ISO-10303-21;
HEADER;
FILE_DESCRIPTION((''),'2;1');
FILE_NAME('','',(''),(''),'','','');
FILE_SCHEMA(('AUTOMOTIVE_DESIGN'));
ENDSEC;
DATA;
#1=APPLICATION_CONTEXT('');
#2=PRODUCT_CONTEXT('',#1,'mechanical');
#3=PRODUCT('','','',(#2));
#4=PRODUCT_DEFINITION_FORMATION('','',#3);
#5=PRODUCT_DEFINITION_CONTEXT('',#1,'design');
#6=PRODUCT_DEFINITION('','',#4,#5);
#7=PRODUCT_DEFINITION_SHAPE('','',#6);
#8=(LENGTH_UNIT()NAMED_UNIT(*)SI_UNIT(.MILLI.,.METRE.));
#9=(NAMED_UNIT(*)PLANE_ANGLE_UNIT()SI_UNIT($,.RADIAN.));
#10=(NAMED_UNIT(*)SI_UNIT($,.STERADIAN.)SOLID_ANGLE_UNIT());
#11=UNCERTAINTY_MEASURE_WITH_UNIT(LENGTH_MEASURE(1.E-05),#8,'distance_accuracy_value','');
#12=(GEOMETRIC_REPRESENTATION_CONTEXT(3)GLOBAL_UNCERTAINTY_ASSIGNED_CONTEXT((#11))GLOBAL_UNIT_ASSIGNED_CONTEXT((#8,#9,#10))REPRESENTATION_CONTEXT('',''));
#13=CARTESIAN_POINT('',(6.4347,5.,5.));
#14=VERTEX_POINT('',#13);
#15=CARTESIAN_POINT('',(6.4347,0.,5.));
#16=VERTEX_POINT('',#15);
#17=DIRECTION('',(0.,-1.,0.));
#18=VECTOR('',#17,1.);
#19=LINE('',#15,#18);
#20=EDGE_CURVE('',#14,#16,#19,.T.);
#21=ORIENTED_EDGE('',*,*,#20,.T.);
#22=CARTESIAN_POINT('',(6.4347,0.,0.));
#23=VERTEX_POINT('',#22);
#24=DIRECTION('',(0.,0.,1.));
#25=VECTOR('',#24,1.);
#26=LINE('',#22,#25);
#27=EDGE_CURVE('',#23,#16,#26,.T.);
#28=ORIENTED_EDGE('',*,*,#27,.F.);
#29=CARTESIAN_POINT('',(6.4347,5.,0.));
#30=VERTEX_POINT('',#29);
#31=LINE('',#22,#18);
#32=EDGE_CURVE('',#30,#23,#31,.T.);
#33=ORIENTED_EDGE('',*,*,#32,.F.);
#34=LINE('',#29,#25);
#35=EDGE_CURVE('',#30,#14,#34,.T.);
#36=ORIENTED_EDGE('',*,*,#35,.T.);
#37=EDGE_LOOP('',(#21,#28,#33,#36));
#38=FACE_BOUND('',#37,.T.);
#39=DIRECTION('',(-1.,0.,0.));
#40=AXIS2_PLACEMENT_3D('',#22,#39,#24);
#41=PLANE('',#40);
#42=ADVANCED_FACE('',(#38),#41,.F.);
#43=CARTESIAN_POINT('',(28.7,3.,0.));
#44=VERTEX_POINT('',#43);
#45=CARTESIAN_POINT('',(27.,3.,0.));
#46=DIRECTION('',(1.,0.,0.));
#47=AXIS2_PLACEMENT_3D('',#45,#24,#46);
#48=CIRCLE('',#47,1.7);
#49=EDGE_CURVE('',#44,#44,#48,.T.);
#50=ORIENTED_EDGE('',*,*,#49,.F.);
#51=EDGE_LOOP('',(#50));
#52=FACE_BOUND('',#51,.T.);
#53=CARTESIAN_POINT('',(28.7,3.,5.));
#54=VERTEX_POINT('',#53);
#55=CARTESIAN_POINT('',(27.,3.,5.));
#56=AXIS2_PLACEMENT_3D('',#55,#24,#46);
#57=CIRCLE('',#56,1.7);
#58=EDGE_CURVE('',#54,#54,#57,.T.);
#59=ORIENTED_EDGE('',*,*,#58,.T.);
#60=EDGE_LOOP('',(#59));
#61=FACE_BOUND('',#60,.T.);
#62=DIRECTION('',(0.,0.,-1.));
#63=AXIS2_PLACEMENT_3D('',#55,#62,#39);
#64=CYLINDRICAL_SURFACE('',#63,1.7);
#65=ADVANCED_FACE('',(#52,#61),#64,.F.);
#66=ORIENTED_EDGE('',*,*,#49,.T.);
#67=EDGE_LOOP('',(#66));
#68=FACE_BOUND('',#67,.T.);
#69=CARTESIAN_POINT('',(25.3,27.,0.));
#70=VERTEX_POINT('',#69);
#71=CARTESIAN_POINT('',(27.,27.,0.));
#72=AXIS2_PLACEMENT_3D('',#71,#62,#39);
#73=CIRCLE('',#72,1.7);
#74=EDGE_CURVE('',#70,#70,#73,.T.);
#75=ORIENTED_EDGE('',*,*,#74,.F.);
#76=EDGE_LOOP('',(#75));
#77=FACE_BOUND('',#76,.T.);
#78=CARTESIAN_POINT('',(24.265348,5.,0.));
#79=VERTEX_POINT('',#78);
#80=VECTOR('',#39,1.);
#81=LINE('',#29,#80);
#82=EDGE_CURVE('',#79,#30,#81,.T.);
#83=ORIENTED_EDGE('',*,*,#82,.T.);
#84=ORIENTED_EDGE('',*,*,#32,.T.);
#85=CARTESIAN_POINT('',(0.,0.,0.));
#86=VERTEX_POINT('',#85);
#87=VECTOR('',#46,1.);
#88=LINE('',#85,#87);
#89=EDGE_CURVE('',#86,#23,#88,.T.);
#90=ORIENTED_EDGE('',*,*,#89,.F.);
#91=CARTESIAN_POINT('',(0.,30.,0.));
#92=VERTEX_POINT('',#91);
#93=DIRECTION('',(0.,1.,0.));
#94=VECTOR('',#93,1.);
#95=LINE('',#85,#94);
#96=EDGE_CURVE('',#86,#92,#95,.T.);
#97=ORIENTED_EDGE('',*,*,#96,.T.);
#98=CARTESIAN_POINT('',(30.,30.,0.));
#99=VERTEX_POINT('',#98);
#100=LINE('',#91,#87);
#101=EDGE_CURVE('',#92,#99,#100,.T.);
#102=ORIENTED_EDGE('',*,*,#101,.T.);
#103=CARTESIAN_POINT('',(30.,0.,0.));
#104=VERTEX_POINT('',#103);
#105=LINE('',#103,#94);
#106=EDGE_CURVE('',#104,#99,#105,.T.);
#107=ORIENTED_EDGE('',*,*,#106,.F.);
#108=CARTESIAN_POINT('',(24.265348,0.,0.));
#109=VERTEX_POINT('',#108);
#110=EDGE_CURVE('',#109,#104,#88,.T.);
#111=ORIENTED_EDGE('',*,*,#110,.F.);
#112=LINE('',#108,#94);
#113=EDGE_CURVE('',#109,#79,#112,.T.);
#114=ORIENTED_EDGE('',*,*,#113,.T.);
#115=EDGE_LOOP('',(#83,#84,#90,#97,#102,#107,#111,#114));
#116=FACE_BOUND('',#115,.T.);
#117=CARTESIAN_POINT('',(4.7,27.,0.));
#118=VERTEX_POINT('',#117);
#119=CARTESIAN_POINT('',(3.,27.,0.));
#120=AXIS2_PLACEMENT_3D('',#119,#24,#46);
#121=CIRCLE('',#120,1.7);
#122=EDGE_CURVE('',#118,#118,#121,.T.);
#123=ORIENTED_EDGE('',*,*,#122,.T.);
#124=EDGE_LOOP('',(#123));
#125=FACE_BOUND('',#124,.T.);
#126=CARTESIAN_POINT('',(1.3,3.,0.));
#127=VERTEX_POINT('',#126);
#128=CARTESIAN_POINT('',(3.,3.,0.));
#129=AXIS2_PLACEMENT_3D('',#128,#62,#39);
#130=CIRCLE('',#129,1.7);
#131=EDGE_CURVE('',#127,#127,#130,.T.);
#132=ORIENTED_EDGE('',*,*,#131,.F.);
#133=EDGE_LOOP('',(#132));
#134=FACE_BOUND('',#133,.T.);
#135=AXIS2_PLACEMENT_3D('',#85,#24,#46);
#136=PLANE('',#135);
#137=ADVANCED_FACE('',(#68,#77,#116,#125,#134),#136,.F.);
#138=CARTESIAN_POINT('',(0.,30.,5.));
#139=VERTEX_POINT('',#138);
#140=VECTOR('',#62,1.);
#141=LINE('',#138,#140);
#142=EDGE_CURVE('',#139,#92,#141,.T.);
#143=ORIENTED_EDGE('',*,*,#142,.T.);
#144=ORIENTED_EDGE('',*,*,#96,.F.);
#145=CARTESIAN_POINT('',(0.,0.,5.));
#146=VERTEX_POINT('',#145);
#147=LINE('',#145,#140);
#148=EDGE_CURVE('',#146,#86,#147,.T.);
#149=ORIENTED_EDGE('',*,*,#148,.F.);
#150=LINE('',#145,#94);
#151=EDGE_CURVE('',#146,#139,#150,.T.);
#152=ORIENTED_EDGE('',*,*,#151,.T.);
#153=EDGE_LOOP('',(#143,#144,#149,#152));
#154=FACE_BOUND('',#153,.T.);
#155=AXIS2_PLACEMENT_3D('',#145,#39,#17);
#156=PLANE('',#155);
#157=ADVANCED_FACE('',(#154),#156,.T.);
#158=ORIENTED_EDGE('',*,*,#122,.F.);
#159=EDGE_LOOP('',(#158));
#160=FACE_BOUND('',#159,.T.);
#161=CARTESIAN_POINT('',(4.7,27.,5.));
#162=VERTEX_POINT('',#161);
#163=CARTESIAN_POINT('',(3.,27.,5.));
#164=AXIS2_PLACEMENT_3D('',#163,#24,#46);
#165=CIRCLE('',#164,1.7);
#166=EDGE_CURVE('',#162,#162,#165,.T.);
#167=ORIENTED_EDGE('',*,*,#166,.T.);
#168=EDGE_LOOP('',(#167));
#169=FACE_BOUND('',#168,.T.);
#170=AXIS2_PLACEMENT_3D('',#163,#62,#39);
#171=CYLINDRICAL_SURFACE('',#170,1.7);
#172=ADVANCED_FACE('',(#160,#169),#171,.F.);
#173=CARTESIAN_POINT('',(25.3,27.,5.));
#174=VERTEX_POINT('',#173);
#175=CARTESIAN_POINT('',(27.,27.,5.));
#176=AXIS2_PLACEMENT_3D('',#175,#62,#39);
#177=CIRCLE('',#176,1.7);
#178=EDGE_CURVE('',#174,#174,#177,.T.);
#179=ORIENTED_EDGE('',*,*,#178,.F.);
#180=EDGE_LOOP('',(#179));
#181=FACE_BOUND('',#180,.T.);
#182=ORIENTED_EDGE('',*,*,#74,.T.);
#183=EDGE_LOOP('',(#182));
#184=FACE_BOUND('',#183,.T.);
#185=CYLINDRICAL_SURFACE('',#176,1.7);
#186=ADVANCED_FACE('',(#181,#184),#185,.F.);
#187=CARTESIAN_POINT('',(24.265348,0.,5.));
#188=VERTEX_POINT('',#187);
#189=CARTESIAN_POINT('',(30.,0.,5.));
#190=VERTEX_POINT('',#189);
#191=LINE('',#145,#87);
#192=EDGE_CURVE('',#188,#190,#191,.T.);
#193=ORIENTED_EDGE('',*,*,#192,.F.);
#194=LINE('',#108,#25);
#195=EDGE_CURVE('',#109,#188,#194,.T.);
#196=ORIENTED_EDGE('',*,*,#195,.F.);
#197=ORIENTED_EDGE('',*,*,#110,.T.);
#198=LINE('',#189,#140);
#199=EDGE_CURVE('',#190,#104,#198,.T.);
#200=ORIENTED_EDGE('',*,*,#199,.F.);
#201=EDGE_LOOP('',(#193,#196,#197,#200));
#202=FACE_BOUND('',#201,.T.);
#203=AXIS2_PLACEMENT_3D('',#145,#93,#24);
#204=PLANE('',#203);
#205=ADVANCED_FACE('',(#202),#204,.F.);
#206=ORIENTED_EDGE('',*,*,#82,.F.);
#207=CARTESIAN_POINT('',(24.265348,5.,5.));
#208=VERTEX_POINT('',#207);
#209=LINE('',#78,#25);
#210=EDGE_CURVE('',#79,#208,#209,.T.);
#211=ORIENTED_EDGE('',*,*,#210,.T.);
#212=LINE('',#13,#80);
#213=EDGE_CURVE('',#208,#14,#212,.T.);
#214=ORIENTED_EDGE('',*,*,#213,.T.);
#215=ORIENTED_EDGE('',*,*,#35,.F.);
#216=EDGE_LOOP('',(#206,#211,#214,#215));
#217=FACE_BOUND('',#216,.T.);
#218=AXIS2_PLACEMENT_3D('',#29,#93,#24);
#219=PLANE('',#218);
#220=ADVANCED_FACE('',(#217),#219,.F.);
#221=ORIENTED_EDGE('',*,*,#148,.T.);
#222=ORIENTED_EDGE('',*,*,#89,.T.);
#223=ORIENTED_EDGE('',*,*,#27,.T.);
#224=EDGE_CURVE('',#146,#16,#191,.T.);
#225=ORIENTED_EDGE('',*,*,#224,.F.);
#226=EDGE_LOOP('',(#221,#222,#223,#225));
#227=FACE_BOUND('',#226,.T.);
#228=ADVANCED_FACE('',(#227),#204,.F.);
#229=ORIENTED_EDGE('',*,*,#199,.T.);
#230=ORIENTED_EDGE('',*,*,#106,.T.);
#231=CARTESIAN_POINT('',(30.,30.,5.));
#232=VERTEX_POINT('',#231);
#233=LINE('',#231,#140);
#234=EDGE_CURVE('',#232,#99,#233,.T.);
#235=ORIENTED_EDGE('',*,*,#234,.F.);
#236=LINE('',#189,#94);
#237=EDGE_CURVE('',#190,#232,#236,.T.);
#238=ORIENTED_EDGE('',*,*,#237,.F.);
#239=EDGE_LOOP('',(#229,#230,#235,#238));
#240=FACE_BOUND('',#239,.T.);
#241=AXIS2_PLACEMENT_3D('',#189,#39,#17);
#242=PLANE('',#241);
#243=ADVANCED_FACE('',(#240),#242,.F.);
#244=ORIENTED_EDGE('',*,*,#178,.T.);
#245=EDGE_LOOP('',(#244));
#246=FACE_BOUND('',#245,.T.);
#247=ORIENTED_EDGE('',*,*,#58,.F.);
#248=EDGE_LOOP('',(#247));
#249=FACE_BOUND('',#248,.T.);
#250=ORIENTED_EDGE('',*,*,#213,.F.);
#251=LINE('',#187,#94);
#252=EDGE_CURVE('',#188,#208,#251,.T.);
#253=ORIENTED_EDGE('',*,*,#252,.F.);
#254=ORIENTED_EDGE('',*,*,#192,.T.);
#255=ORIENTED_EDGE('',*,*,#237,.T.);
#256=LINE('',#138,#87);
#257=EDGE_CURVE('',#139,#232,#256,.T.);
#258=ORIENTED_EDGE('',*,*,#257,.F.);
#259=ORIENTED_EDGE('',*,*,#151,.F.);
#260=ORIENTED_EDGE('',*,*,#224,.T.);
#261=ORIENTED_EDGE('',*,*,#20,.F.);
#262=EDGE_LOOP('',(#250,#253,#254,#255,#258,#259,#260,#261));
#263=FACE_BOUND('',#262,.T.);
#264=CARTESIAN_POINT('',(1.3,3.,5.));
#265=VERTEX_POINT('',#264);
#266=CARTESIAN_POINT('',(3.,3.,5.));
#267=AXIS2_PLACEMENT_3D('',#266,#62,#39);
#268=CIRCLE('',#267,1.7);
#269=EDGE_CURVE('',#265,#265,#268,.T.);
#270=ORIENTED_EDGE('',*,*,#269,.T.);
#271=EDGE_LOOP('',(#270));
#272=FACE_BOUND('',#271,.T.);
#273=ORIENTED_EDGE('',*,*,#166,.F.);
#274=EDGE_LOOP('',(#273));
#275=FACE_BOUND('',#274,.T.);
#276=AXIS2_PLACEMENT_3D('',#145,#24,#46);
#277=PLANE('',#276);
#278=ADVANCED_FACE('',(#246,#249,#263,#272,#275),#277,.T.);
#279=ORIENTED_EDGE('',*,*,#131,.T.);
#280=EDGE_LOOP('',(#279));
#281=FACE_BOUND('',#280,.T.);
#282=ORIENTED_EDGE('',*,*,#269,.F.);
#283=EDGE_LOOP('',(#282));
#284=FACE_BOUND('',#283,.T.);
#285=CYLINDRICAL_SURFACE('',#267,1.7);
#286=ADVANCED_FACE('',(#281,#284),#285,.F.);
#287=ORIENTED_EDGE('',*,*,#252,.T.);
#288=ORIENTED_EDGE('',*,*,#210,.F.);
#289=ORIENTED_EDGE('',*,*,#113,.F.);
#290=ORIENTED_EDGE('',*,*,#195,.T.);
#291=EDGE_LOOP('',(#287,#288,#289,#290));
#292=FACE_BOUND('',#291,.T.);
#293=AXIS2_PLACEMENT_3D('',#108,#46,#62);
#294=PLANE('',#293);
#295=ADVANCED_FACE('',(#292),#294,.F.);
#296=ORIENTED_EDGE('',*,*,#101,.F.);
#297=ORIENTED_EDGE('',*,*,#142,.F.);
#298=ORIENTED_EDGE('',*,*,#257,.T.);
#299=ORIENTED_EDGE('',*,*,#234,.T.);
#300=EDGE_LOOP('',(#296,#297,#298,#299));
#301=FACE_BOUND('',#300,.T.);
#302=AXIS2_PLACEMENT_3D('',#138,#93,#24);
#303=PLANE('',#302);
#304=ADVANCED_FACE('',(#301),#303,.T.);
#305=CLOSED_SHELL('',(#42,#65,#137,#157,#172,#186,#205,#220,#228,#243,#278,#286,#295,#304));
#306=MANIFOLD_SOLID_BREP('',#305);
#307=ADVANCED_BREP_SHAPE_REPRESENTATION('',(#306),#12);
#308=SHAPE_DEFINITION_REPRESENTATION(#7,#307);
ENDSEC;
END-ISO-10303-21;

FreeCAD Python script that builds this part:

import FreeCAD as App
import Part
import Sketcher
from FreeCAD import Vector
Q = App.Units.Quantity

doc = App.newDocument("Part")
body = doc.addObject("PartDesign::Body", "Body")

# Sketch on XY plane
sketch1 = body.newObject("Sketcher::SketchObject", "Sketch")
sketch1.AttachmentSupport = (doc.getObject("XY_Plane"), [""])
sketch1.MapMode = "FlatFace"
sketch1.addGeometry(Part.LineSegment(Vector(0, 30, 0), Vector(0, 0, 0)), False)
sketch1.addGeometry(Part.LineSegment(Vector(0, 0, 0), Vector(30, 0, 0)), False)
sketch1.addGeometry(Part.LineSegment(Vector(30, 0, 0), Vector(30, 30, 0)), False)
sketch1.addGeometry(Part.LineSegment(Vector(30, 30, 0), Vector(0, 30, 0)), False)
sketch1.addGeometry(Part.Circle(Vector(3, 3, 0), Vector(0, 0, 1), 1.7), False)
sketch1.addGeometry(Part.Circle(Vector(27, 3, 0), Vector(0, 0, 1), 1.7), False)
sketch1.addGeometry(Part.Circle(Vector(3, 27, 0), Vector(0, 0, 1), 1.7), False)
sketch1.addGeometry(Part.Circle(Vector(27, 27, 0), Vector(0, 0, 1), 1.7), False)
sketch1.addConstraint(Sketcher.Constraint("Coincident", 0, 2, 1, 1))
sketch1.addConstraint(Sketcher.Constraint("Coincident", 1, 2, 2, 1))
sketch1.addConstraint(Sketcher.Constraint("Coincident", 2, 2, 3, 1))
sketch1.addConstraint(Sketcher.Constraint("Coincident", 3, 2, 0, 1))
sketch1.addConstraint(Sketcher.Constraint("Vertical", 0))
sketch1.addConstraint(Sketcher.Constraint("Horizontal", 1))
sketch1.addConstraint(Sketcher.Constraint("Vertical", 2))
sketch1.addConstraint(Sketcher.Constraint("Horizontal", 3))
sketch1.addConstraint(Sketcher.Constraint("Coincident", 0, 2, -1, 1))
sketch1.addConstraint(Sketcher.Constraint("Equal", 4, 5))
sketch1.addConstraint(Sketcher.Constraint("Equal", 5, 6))
sketch1.addConstraint(Sketcher.Constraint("Equal", 6, 7))
sketch1.addConstraint(Sketcher.Constraint("Horizontal", 4, 3, 5, 3))
sketch1.addConstraint(Sketcher.Constraint("Horizontal", 6, 3, 7, 3))
sketch1.addConstraint(Sketcher.Constraint("Vertical", 4, 3, 6, 3))
sketch1.addConstraint(Sketcher.Constraint("Vertical", 5, 3, 7, 3))
sketch1.addConstraint(Sketcher.Constraint("Equal", 3, 0))
sketch1.addConstraint(Sketcher.Constraint("Diameter", 4, Q("3.4 mm")))
sketch1.addConstraint(Sketcher.Constraint("DistanceX", 1, 1, 1, 2, Q("30 mm")))
sketch1.addConstraint(Sketcher.Constraint("DistanceX", -1, 1, 4, 3, Q("3 mm")))
sketch1.addConstraint(Sketcher.Constraint("DistanceY", -1, 1, 4, 3, Q("3 mm")))
sketch1.addConstraint(Sketcher.Constraint("DistanceX", -1, 1, 5, 3, Q("27 mm")))
sketch1.addConstraint(Sketcher.Constraint("DistanceY", -1, 1, 6, 3, Q("27 mm")))
pad1 = body.newObject("PartDesign::Pad", "Pad")
pad1.Profile = sketch1
pad1.Length = 5

# Sketch on XY plane
sketch2 = body.newObject("Sketcher::SketchObject", "Sketch001")
sketch2.AttachmentSupport = (doc.getObject("XY_Plane"), [""])
sketch2.MapMode = "FlatFace"
sketch2.AttachmentOffset = App.Placement(Vector(0, 0, 5), App.Rotation())
sketch2.addGeometry(Part.LineSegment(Vector(6.4347, 5, 0), Vector(6.4347, 0, 0)), False)
sketch2.addGeometry(Part.LineSegment(Vector(6.4347, 0, 0), Vector(24.265348, 0, 0)), False)
sketch2.addGeometry(Part.LineSegment(Vector(24.265348, 0, 0), Vector(24.265348, 5, 0)), False)
sketch2.addGeometry(Part.LineSegment(Vector(24.265348, 5, 0), Vector(6.4347, 5, 0)), False)
sketch2.addConstraint(Sketcher.Constraint("Coincident", 0, 2, 1, 1))
sketch2.addConstraint(Sketcher.Constraint("Coincident", 1, 2, 2, 1))
sketch2.addConstraint(Sketcher.Constraint("Coincident", 2, 2, 3, 1))
sketch2.addConstraint(Sketcher.Constraint("Coincident", 3, 2, 0, 1))
sketch2.addConstraint(Sketcher.Constraint("Vertical", 0))
sketch2.addConstraint(Sketcher.Constraint("Horizontal", 1))
sketch2.addConstraint(Sketcher.Constraint("Vertical", 2))
sketch2.addConstraint(Sketcher.Constraint("Horizontal", 3))
sketch2.addConstraint(Sketcher.Constraint("PointOnObject", 0, 2, -1))
sketch2.addConstraint(Sketcher.Constraint("DistanceY", 0, 2, 0, 1, Q("5 mm")))
sketch2.addConstraint(Sketcher.Constraint("DistanceX", -1, 1, 0, 2, Q("6.4347 mm")))
sketch2.addConstraint(Sketcher.Constraint("DistanceX", 1, 1, 1, 2, Q("17.830648 mm")))
pocket1 = body.newObject("PartDesign::Pocket", "Pocket")
pocket1.Profile = sketch2
pocket1.Length = 5

doc.recompute()
